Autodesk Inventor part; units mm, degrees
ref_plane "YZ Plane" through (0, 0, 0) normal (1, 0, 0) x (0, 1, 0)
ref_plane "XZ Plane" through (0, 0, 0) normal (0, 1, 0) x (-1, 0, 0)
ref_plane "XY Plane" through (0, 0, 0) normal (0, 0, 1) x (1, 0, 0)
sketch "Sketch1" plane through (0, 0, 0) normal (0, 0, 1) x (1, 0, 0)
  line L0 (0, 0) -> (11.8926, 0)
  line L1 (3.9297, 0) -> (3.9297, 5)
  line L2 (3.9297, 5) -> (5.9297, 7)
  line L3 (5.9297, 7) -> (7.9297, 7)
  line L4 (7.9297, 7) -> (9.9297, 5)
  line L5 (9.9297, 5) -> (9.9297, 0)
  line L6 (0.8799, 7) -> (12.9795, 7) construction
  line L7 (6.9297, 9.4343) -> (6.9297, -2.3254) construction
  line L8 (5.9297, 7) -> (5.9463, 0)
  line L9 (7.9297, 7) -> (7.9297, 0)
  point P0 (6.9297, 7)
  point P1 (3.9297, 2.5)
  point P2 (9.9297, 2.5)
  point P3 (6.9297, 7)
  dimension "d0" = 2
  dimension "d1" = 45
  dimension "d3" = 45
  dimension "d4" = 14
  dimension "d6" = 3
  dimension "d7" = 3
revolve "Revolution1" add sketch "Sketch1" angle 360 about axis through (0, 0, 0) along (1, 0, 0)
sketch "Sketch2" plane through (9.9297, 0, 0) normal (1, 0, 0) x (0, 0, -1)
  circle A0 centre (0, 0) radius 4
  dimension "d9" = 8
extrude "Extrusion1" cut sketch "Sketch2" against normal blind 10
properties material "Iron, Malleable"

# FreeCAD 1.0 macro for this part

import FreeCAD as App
import Part
import Sketcher
from FreeCAD import Vector


def add_polygon(sketch, points):
    """Adds a closed chain of lines whose ends are joined by coincident constraints."""
    first, n = sketch.GeometryCount, len(points)
    for a, b in zip(points, points[1:] + points[:1]):
        sketch.addGeometry(Part.LineSegment(App.Vector(*a, 0), App.Vector(*b, 0)), False)
    for i in range(n):
        sketch.addConstraint(Sketcher.Constraint("Coincident", first + i, 2, first + (i + 1) % n, 1))

doc = App.newDocument("Part")
body = doc.addObject("PartDesign::Body", "Body")

sketch1 = doc.addObject("Sketcher::SketchObject", "Sketch")
body.addObject(sketch1)
sketch1.AttachmentSupport = (doc.XY_Plane, [""])
sketch1.MapMode = "FlatFace"
add_polygon(sketch1, [(3.9297, 5), (3.9297, 0), (9.9297, 0), (9.9297, 5), (7.9297, 7), (5.9297, 7)])
sketch1.addConstraint(Sketcher.Constraint("Vertical", 0))
sketch1.addConstraint(Sketcher.Constraint("Horizontal", 1))
sketch1.addConstraint(Sketcher.Constraint("Vertical", 2))
sketch1.addConstraint(Sketcher.Constraint("Horizontal", 4))
sketch1.addConstraint(Sketcher.Constraint("PointOnObject", 0, 2, -1))
sketch1.addConstraint(Sketcher.Constraint("Perpendicular", 3, 5))
sketch1.addConstraint(Sketcher.Constraint("Horizontal", 2, 2, 5, 2))
sketch1.addConstraint(Sketcher.Constraint("Equal", 3, 5))
sketch1.addConstraint(Sketcher.Constraint("DistanceX", 4, 2, 4, 1, 2.0))
sketch1.addConstraint(Sketcher.Constraint("DistanceX", 3, 2, 2, 2, 2.0))
sketch1.addConstraint(Sketcher.Constraint("DistanceY", 0, 2, 0, 1, 5.0))
sketch1.addConstraint(Sketcher.Constraint("DistanceX", -1, 1, 0, 2, 3.9297))
revolution = doc.addObject("PartDesign::Revolution", "Revolution")
body.addObject(revolution)
revolution.Profile = sketch1
revolution.ReferenceAxis = (sketch1, ["H_Axis"])
revolution.Angle = 360

sketch2 = doc.addObject("Sketcher::SketchObject", "Sketch001")
body.addObject(sketch2)
sketch2.AttachmentSupport = (doc.YZ_Plane, [""])
sketch2.MapMode = "FlatFace"
sketch2.AttachmentOffset = App.Placement(Vector(0, 0, 9.9297), App.Rotation())
sketch2.addGeometry(Part.Circle(Vector(0, 0, 0), Vector(0, 0, 1), 4), False)
sketch2.addConstraint(Sketcher.Constraint("Coincident", 0, 3, -1, 1))
sketch2.addConstraint(Sketcher.Constraint("Diameter", 0, 8.0))
pocket1 = doc.addObject("PartDesign::Pocket", "Pocket")
body.addObject(pocket1)
pocket1.Profile = sketch2
pocket1.Length = 10

doc.recompute()
